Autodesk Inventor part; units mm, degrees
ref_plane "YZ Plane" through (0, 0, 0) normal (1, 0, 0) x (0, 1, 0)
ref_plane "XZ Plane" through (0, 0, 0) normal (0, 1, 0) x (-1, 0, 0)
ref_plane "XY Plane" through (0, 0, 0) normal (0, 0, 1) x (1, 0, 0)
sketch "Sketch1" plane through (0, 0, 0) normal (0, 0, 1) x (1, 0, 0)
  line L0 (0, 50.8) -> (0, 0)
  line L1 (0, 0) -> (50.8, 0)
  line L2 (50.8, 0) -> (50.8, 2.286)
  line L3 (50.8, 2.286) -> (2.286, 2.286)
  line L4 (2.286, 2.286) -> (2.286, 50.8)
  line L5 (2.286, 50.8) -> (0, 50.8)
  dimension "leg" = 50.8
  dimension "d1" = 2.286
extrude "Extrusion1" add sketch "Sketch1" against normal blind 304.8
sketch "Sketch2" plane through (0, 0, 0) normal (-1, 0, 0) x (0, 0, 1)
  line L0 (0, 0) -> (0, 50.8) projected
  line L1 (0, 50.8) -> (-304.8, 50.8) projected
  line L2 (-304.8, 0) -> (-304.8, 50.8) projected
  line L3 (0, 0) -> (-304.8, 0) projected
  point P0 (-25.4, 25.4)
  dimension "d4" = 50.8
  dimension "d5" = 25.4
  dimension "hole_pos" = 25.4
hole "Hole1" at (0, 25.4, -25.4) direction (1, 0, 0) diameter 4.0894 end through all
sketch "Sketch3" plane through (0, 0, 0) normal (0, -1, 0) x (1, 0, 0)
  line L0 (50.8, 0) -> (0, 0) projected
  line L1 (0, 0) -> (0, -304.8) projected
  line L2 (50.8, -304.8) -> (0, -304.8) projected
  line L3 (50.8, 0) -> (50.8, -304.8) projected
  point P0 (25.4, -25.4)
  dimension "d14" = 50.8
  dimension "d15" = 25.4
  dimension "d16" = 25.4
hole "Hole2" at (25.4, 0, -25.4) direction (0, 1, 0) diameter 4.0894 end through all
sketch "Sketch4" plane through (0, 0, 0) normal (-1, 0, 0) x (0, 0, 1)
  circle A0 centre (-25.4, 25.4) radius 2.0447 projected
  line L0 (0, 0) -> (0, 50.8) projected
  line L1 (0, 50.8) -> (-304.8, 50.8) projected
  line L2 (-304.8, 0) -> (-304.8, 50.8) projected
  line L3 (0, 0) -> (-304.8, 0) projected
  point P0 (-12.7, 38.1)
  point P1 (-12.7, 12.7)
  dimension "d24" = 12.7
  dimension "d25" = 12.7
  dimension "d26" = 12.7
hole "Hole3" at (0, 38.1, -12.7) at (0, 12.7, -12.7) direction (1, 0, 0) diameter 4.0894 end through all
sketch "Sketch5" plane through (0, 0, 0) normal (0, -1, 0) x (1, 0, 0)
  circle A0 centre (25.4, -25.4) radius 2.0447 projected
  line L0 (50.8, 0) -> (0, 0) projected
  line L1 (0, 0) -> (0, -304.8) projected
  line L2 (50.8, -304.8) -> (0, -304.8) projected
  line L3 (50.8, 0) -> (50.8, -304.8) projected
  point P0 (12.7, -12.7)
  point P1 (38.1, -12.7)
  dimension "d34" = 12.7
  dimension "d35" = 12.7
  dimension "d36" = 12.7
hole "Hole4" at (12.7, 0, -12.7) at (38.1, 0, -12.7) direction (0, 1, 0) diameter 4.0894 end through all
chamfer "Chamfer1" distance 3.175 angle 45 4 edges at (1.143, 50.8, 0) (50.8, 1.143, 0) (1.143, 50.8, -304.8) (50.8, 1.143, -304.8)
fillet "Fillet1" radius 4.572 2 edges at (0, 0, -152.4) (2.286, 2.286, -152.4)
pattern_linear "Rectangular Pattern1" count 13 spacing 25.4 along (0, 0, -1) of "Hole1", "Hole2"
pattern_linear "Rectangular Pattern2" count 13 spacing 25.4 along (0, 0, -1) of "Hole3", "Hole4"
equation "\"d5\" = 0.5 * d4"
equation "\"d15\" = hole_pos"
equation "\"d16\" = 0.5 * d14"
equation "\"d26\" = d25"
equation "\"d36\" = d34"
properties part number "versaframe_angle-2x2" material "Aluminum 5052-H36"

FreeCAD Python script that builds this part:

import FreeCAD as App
import Part
import Sketcher

V = App.Vector
Q = App.Units.Quantity


def edges_at(feature, points):
    """Names of the edges that pass closest to the given points."""
    edges = feature.Shape.Edges
    near = lambda p: min(range(len(edges)), key=lambda i: edges[i].distToShape(Part.Vertex(*p))[0])
    return sorted({f"Edge{near(p) + 1}" for p in points})

doc = App.newDocument("Part")
body = doc.addObject("PartDesign::Body", "Body")

# Sketch on XY plane
sketch1 = body.newObject("Sketcher::SketchObject", "Sketch")
sketch1.AttachmentSupport = (doc.getObject("XY_Plane"), [""])
sketch1.MapMode = "FlatFace"
sketch1.addGeometry([
    Part.LineSegment(V(2.3, 50.8, 0), V(0, 50.8, 0)),  # 0
    Part.LineSegment(V(0, 50.8, 0), V(0, 0, 0)),  # 1
    Part.LineSegment(V(0, 0, 0), V(50.8, 0, 0)),  # 2
    Part.LineSegment(V(50.8, 0, 0), V(50.8, 2.3, 0)),  # 3
    Part.LineSegment(V(50.8, 2.3, 0), V(2.3, 2.3, 0)),  # 4
    Part.LineSegment(V(2.3, 2.3, 0), V(2.3, 50.8, 0)),  # 5
], False)
sketch1.addConstraint([
    Sketcher.Constraint("Coincident", 0, 2, 1, 1),
    Sketcher.Constraint("Coincident", 1, 2, 2, 1),
    Sketcher.Constraint("Coincident", 2, 2, 3, 1),
    Sketcher.Constraint("Coincident", 3, 2, 4, 1),
    Sketcher.Constraint("Coincident", 4, 2, 5, 1),
    Sketcher.Constraint("Coincident", 5, 2, 0, 1),
    Sketcher.Constraint("Horizontal", 0),
    Sketcher.Constraint("Vertical", 1),
    Sketcher.Constraint("Horizontal", 2),
    Sketcher.Constraint("Vertical", 3),
    Sketcher.Constraint("Horizontal", 4),
    Sketcher.Constraint("Vertical", 5),
    Sketcher.Constraint("Coincident", 1, 2, -1, 1),
    Sketcher.Constraint("Equal", 2, 1),
    Sketcher.Constraint("Equal", 0, 3),
    Sketcher.Constraint("DistanceX", 2, 1, 2, 2, Q("2 in")),
    Sketcher.Constraint("DistanceX", 0, 2, 0, 1, Q("0.09 in")),
])
pad1 = body.newObject("PartDesign::Pad", "Pad")
pad1.Profile = sketch1
pad1.Length = Q("12 in")
pad1.Reversed = True

# Sketch on YZ plane
sketch2 = body.newObject("Sketcher::SketchObject", "Sketch001")
sketch2.AttachmentSupport = (doc.getObject("YZ_Plane"), [""])
sketch2.MapMode = "FlatFace"
sketch2.addGeometry(Part.Circle(V(25.4, -25.4, 0), V(0, 0, 1), 2), False)
sketch2.addConstraint([
    Sketcher.Constraint("Diameter", 0, Q("0.161 in")),
    Sketcher.Constraint("DistanceX", -1, 1, 0, 3, Q("1 in")),
    Sketcher.Constraint("DistanceY", 0, 3, -1, 1, Q("1 in")),
])
doc.recompute()
hole = body.newObject("PartDesign::Hole", "Hole")
hole.Profile = sketch2
hole.ThreadType = "None"
hole.Diameter = Q("0.161 in")
hole.DepthType = "ThroughAll"
hole.Reversed = True

# Sketch on XZ plane
sketch3 = body.newObject("Sketcher::SketchObject", "Sketch002")
sketch3.AttachmentSupport = (doc.getObject("XZ_Plane"), [""])
sketch3.MapMode = "FlatFace"
sketch3.addGeometry(Part.Circle(V(25.4, -25.4, 0), V(0, 0, 1), 2), False)
sketch3.addConstraint([
    Sketcher.Constraint("Diameter", 0, Q("0.161 in")),
    Sketcher.Constraint("DistanceX", -1, 1, 0, 3, Q("1 in")),
    Sketcher.Constraint("DistanceY", 0, 3, -1, 1, Q("1 in")),
])
doc.recompute()
hole2 = body.newObject("PartDesign::Hole", "Hole001")
hole2.Profile = sketch3
hole2.ThreadType = "None"
hole2.Diameter = Q("0.161 in")
hole2.DepthType = "ThroughAll"

# Sketch on YZ plane
sketch4 = body.newObject("Sketcher::SketchObject", "Sketch003")
sketch4.AttachmentSupport = (doc.getObject("YZ_Plane"), [""])
sketch4.MapMode = "FlatFace"
sketch4.addGeometry([
    Part.Circle(V(38.1, -12.7, 0), V(0, 0, 1), 2),
    Part.Circle(V(12.7, -12.7, 0), V(0, 0, 1), 2),
], False)
sketch4.addConstraint([
    Sketcher.Constraint("Equal", 0, 1),
    Sketcher.Constraint("Horizontal", 0, 3, 1, 3),
    Sketcher.Constraint("Diameter", 0, Q("0.161 in")),
    Sketcher.Constraint("DistanceX", 1, 3, 0, 3, Q("1 in")),
    Sketcher.Constraint("DistanceX", -1, 1, 0, 3, Q("1.5 in")),
    Sketcher.Constraint("DistanceY", 0, 3, -1, 1, Q("0.5 in")),
])
doc.recompute()
hole3 = body.newObject("PartDesign::Hole", "Hole002")
hole3.Profile = sketch4
hole3.ThreadType = "None"
hole3.Diameter = Q("0.161 in")
hole3.DepthType = "ThroughAll"
hole3.Reversed = True

# Sketch on XZ plane
sketch5 = body.newObject("Sketcher::SketchObject", "Sketch004")
sketch5.AttachmentSupport = (doc.getObject("XZ_Plane"), [""])
sketch5.MapMode = "FlatFace"
sketch5.addGeometry([
    Part.Circle(V(12.7, -12.7, 0), V(0, 0, 1), 2),
    Part.Circle(V(38.1, -12.7, 0), V(0, 0, 1), 2),
], False)
sketch5.addConstraint([
    Sketcher.Constraint("Equal", 0, 1),
    Sketcher.Constraint("Horizontal", 0, 3, 1, 3),
    Sketcher.Constraint("Diameter", 0, Q("0.161 in")),
    Sketcher.Constraint("DistanceX", 0, 3, 1, 3, Q("1 in")),
    Sketcher.Constraint("DistanceX", -1, 1, 0, 3, Q("0.5 in")),
    Sketcher.Constraint("DistanceY", 0, 3, -1, 1, Q("0.5 in")),
])
doc.recompute()
hole4 = body.newObject("PartDesign::Hole", "Hole003")
hole4.Profile = sketch5
hole4.ThreadType = "None"
hole4.Diameter = Q("0.161 in")
hole4.DepthType = "ThroughAll"
doc.recompute()

chamfer = body.newObject("PartDesign::Chamfer", "Chamfer")
chamfer.Base = (hole4, edges_at(hole4, [
    (1.143, 50.8, 0),
    (50.8, 1.143, 0),
    (1.143, 50.8, -304.8),
    (50.8, 1.143, -304.8),
]))
chamfer.Size = Q("0.125 in")
doc.recompute()

fillet = body.newObject("PartDesign::Fillet", "Fillet")
fillet.Base = (chamfer, edges_at(chamfer, [(0, 0, -152.4), (2.286, 2.286, -152.4)]))
fillet.Radius = Q("0.18 in")
doc.recompute()

linearpattern = body.newObject("PartDesign::LinearPattern", "LinearPattern")
linearpattern.Originals = [hole, hole2]
linearpattern.Direction = (doc.getObject("Z_Axis"), [""])
linearpattern.Mode = "offset"
linearpattern.Offset = Q("1 in")
linearpattern.Occurrences = 13
linearpattern.Reversed = True
body.Tip = linearpattern
doc.recompute()

linearpattern2 = body.newObject("PartDesign::LinearPattern", "LinearPattern001")
linearpattern2.Originals = [hole3, hole4]
linearpattern2.Direction = (doc.getObject("Z_Axis"), [""])
linearpattern2.Mode = "offset"
linearpattern2.Offset = Q("1 in")
linearpattern2.Occurrences = 13
linearpattern2.Reversed = True
body.Tip = linearpattern2

doc.recompute()
